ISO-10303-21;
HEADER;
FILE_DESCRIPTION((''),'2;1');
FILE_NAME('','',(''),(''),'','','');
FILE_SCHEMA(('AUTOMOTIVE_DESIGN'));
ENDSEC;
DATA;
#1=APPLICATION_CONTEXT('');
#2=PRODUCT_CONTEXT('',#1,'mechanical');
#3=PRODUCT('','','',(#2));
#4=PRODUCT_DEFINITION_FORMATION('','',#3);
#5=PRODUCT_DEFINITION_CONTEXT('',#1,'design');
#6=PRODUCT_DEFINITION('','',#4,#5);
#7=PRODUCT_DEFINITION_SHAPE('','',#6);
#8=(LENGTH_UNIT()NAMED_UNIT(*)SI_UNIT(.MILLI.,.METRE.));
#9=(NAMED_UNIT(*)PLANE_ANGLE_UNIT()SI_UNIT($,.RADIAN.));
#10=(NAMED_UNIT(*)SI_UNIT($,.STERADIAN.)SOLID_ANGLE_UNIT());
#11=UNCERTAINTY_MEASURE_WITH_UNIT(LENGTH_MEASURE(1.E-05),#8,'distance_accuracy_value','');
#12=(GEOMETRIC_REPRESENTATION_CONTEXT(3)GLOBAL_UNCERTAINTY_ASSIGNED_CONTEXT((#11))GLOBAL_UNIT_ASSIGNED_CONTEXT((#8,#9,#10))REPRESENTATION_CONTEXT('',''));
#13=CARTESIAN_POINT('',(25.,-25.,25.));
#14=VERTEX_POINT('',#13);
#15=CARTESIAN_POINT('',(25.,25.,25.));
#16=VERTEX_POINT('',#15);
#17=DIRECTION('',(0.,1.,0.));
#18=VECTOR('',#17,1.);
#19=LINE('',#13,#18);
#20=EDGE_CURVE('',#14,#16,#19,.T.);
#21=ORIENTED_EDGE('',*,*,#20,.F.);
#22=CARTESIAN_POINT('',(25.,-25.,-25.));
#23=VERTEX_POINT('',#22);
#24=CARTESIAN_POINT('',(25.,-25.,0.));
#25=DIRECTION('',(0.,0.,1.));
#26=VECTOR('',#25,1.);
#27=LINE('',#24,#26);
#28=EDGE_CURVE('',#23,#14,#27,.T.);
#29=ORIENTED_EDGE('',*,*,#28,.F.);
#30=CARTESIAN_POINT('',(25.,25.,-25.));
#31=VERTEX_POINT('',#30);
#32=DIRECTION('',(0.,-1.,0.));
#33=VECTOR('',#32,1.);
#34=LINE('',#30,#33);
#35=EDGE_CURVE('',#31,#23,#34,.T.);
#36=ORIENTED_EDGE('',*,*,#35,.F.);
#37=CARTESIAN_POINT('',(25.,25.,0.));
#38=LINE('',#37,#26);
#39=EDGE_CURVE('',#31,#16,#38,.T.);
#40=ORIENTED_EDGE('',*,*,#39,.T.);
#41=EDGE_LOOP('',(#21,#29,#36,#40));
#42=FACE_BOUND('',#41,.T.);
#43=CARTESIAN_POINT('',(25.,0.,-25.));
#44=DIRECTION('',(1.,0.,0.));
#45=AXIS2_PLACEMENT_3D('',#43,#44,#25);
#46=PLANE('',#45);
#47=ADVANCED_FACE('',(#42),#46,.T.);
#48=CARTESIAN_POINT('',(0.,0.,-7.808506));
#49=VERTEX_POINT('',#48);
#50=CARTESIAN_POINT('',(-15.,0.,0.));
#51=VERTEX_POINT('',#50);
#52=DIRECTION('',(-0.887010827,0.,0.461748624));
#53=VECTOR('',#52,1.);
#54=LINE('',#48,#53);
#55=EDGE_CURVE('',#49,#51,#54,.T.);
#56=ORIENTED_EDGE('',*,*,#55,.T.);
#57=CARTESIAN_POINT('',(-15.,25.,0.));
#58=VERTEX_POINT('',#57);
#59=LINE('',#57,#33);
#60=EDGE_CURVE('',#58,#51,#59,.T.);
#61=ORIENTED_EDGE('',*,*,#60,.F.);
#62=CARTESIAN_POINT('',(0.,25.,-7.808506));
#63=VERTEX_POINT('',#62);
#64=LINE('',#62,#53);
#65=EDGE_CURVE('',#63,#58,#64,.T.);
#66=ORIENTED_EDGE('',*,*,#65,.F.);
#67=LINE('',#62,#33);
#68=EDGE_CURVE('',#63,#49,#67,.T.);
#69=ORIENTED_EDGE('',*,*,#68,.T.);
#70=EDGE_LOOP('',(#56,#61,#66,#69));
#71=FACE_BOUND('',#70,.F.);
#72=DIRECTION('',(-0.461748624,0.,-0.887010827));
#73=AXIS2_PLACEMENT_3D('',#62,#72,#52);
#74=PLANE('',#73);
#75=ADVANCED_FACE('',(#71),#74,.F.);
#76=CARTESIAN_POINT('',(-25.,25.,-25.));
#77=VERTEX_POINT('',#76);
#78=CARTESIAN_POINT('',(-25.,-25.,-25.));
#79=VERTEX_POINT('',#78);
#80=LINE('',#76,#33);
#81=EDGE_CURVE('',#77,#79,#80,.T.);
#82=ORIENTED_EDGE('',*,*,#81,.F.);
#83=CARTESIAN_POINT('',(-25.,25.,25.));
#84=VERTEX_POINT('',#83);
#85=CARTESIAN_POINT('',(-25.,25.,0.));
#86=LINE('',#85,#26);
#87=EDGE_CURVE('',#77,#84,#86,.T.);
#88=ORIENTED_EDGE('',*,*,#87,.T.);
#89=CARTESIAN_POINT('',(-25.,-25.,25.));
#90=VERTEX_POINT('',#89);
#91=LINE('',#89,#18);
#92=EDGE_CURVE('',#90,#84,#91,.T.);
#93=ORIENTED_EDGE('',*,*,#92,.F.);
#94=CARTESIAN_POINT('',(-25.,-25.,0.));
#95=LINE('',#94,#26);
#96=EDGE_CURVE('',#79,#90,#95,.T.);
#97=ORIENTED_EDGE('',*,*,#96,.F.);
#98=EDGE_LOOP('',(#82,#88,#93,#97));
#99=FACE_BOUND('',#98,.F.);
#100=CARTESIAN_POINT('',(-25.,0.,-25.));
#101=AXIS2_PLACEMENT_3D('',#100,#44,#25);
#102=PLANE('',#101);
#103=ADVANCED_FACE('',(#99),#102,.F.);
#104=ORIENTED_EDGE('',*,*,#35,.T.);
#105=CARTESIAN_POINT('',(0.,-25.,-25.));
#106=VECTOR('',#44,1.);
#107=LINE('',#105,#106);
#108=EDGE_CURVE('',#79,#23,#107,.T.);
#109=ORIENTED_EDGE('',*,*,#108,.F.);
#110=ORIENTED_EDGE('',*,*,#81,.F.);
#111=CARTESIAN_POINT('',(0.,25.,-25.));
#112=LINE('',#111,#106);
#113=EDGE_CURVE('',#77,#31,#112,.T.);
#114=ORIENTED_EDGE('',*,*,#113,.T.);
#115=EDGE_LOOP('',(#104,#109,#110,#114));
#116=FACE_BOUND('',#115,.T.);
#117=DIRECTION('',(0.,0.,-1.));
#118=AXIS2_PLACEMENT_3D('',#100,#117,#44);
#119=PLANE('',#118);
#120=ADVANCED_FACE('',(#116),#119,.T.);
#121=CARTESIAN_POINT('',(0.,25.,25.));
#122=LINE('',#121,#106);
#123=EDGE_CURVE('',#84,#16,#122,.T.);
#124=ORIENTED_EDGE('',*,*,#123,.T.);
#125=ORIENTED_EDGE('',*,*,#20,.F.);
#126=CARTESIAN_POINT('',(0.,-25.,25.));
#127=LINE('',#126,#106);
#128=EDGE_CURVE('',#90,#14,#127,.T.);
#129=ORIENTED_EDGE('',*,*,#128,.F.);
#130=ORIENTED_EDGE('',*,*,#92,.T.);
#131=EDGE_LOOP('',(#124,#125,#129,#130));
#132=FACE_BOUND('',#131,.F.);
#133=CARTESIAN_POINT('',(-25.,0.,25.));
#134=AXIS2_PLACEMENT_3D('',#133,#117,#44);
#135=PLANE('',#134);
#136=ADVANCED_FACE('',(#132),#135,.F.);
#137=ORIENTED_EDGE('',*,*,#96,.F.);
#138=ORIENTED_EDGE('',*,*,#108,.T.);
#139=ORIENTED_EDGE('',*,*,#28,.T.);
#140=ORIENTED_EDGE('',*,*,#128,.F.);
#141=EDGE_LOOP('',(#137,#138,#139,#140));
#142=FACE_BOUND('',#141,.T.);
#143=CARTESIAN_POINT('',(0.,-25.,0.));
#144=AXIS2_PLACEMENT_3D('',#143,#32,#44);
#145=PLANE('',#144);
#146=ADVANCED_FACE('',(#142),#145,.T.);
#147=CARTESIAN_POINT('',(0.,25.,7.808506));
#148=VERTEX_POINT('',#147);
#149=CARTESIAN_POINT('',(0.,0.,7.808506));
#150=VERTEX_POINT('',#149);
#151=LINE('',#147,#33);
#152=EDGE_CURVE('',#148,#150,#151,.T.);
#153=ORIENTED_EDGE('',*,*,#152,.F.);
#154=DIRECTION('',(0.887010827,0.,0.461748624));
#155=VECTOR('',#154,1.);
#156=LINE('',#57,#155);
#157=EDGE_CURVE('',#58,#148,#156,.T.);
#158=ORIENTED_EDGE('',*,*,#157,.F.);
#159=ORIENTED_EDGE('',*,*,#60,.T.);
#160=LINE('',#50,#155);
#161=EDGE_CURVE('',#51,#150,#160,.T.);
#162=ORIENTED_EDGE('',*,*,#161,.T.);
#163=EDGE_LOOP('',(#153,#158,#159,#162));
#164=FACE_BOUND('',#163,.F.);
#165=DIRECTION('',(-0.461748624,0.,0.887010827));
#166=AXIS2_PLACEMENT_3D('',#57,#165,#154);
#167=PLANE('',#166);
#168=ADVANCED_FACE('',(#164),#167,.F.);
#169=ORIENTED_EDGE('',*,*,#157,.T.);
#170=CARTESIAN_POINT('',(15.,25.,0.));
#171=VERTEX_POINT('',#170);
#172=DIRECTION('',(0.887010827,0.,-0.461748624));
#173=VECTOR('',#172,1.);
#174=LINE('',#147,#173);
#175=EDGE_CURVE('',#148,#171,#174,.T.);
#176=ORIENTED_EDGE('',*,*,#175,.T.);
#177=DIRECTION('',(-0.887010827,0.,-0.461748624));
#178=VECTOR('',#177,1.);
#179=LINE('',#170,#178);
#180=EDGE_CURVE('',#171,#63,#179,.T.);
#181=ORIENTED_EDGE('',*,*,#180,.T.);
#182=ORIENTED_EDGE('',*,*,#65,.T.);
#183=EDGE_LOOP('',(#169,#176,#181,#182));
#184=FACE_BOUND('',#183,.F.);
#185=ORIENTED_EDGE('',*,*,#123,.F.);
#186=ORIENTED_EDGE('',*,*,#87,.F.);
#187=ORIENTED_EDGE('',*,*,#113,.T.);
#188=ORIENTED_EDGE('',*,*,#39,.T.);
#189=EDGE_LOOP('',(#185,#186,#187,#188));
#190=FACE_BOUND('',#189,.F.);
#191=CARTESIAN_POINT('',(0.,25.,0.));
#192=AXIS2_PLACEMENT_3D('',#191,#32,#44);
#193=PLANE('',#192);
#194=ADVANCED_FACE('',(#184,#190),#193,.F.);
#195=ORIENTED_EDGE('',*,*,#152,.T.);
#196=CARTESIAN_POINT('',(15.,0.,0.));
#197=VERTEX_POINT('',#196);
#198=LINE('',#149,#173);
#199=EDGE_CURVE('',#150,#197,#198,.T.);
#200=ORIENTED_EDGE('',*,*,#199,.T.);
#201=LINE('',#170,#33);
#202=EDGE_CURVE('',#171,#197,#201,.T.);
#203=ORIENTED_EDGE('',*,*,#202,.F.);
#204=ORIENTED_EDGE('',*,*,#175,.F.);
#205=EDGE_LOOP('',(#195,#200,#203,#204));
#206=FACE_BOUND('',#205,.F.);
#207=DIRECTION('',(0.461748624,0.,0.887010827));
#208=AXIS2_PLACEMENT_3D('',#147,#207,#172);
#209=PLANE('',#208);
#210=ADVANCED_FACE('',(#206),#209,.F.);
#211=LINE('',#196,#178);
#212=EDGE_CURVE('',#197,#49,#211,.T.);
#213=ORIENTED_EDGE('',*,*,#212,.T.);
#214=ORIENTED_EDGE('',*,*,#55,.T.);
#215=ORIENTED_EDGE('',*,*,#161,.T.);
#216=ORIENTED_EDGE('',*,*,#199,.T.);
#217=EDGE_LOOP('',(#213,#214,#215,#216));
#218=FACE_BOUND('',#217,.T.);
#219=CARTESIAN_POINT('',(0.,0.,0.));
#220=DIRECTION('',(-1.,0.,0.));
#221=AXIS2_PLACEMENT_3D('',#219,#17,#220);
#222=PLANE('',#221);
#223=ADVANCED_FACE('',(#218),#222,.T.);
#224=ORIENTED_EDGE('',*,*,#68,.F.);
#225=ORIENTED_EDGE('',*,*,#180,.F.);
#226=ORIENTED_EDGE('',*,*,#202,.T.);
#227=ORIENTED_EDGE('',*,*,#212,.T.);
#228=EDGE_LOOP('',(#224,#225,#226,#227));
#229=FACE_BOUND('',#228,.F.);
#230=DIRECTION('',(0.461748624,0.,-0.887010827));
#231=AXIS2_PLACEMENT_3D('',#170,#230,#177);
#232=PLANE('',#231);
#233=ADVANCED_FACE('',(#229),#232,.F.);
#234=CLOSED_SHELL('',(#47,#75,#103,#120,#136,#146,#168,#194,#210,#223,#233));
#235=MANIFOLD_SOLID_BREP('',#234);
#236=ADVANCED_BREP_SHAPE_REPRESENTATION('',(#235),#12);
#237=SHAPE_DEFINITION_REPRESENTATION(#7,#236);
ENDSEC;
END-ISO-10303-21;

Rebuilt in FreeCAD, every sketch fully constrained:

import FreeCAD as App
import Part
import Sketcher

V = App.Vector
Q = App.Units.Quantity

doc = App.newDocument("Part")
body = doc.addObject("PartDesign::Body", "Body")

# Sketch on XZ plane
sketch1 = doc.addObject("Sketcher::SketchObject", "Sketch")
body.addObject(sketch1)
sketch1.AttachmentSupport = (doc.XZ_Plane, [""])
sketch1.MapMode = "FlatFace"
sketch1.addGeometry([
    Part.LineSegment(V(-25, 25, 0), V(-25, -25, 0)),
    Part.LineSegment(V(-25, -25, 0), V(25, -25, 0)),
    Part.LineSegment(V(25, -25, 0), V(25, 25, 0)),
    Part.LineSegment(V(25, 25, 0), V(-25, 25, 0)),
], False)
sketch1.addConstraint([
    Sketcher.Constraint("Coincident", 0, 2, 1, 1),
    Sketcher.Constraint("Coincident", 1, 2, 2, 1),
    Sketcher.Constraint("Coincident", 2, 2, 3, 1),
    Sketcher.Constraint("Coincident", 3, 2, 0, 1),
    Sketcher.Constraint("Vertical", 0),
    Sketcher.Constraint("Horizontal", 1),
    Sketcher.Constraint("Vertical", 2),
    Sketcher.Constraint("Horizontal", 3),
    Sketcher.Constraint("Symmetric", 0, 2, 2, 2, -1, 1),
    Sketcher.Constraint("Equal", 3, 0),
    Sketcher.Constraint("DistanceX", 1, 1, 1, 2, Q("50 mm")),
])
pad1 = doc.addObject("PartDesign::Pad", "Pad")
body.addObject(pad1)
pad1.Profile = sketch1
pad1.Length = 50
pad1.Midplane = True

# Sketch on XZ plane
sketch2 = doc.addObject("Sketcher::SketchObject", "Sketch001")
body.addObject(sketch2)
sketch2.AttachmentSupport = (doc.XZ_Plane, [""])
sketch2.MapMode = "FlatFace"
sketch2.AttachmentOffset = App.Placement(V(0, 0, -25), App.Rotation())
sketch2.addGeometry([
    Part.LineSegment(V(-15, 0, 0), V(0, 8, 0)),
    Part.LineSegment(V(0, 8, 0), V(15, 0, 0)),
    Part.LineSegment(V(15, 0, 0), V(0, -8, 0)),
    Part.LineSegment(V(0, -8, 0), V(-15, 0, 0)),
], False)
sketch2.addConstraint([
    Sketcher.Constraint("Coincident", 0, 2, 1, 1),
    Sketcher.Constraint("Coincident", 1, 2, 2, 1),
    Sketcher.Constraint("Coincident", 2, 2, 3, 1),
    Sketcher.Constraint("Coincident", 3, 2, 0, 1),
    Sketcher.Constraint("Symmetric", 0, 2, 2, 2, -1, 1),
    Sketcher.Constraint("Symmetric", 1, 2, 3, 2, -1, 1),
    Sketcher.Constraint("PointOnObject", 0, 2, -2),
    Sketcher.Constraint("PointOnObject", 1, 2, -1),
    Sketcher.Constraint("DistanceX", -1, 1, 1, 2, Q("15 mm")),
    Sketcher.Constraint("Angle", 0, Q("27.500001 deg")),
])
pocket1 = doc.addObject("PartDesign::Pocket", "Pocket")
body.addObject(pocket1)
pocket1.Profile = sketch2
pocket1.Length = 25
pocket1.Reversed = True

doc.recompute()
